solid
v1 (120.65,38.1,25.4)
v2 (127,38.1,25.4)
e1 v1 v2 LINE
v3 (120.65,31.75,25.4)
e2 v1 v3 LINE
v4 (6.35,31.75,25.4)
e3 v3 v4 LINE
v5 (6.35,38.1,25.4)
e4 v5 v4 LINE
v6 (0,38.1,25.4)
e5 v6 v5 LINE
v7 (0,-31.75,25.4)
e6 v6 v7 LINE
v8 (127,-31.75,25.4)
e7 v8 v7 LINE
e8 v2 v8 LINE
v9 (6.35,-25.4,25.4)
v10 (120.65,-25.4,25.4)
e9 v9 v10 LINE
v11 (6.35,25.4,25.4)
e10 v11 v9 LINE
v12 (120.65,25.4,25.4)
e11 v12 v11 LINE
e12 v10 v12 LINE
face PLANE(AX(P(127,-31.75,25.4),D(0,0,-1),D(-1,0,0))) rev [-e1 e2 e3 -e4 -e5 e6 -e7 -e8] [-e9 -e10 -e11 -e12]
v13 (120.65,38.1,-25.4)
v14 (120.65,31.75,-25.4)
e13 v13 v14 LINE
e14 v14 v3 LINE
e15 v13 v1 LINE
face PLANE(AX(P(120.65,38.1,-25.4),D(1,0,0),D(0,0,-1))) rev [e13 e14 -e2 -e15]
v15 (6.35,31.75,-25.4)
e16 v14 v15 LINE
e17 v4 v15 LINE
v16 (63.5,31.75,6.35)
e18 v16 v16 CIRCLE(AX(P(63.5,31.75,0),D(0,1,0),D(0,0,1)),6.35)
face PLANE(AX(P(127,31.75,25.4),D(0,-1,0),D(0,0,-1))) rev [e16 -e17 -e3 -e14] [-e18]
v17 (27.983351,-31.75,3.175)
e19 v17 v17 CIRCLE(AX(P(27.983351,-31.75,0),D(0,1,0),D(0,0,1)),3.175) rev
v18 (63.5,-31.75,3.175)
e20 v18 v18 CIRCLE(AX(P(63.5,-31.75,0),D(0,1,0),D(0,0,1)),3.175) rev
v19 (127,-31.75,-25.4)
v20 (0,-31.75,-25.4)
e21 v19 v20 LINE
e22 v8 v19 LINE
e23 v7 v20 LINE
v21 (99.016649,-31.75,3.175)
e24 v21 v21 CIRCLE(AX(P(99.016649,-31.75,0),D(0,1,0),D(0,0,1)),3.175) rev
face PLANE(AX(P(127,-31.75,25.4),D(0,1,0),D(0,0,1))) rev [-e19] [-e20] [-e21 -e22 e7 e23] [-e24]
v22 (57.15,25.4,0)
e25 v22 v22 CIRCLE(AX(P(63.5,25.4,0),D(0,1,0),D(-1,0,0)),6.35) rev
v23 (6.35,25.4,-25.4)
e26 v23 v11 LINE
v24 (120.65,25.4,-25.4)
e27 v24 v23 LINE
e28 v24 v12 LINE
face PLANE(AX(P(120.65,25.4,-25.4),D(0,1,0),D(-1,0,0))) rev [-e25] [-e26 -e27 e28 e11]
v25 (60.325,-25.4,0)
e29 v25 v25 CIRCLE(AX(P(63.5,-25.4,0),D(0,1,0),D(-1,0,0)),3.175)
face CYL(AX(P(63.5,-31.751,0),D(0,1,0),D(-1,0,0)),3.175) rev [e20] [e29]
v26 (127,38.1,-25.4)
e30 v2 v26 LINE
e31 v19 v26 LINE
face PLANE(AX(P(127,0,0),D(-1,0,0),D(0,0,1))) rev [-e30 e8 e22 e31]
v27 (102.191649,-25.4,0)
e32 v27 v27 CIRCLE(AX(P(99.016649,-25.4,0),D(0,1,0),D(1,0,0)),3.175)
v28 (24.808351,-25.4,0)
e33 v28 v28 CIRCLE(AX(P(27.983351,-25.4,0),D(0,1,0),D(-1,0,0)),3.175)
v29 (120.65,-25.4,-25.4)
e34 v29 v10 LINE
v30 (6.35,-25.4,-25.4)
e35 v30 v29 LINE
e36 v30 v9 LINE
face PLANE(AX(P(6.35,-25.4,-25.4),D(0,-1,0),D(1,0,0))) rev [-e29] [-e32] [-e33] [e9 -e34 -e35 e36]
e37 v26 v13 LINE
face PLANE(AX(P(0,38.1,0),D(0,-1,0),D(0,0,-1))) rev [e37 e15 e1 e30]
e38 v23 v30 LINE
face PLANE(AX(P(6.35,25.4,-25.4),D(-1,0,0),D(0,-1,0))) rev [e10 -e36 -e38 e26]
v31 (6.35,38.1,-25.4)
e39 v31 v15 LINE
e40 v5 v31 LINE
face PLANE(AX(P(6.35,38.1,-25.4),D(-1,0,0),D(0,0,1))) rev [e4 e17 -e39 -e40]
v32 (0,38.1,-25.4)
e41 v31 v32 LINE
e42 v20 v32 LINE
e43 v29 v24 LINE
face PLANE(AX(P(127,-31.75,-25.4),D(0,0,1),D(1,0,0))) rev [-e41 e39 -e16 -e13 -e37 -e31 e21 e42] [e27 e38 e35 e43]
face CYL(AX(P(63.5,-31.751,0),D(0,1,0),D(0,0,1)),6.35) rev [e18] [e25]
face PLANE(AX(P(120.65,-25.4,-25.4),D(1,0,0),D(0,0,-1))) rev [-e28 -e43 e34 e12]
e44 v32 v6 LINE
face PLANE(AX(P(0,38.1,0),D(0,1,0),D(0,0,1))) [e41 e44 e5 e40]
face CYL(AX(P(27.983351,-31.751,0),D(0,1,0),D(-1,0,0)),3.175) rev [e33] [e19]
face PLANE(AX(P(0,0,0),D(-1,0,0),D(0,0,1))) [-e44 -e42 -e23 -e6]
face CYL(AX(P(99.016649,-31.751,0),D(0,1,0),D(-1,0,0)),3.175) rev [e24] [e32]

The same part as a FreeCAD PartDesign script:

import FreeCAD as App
import Part
import Sketcher
Q = App.Units.Quantity

doc = App.newDocument("Part")
body = doc.addObject("PartDesign::Body", "Body")

sketch1 = body.newObject("Sketcher::SketchObject", "Sketch")
sketch1.AttachmentSupport = (doc.getObject("YZ_Plane"), [""])
sketch1.MapMode = "FlatFace"
sketch1.addGeometry([
    Part.LineSegment(App.Vector(31.75, 25.4, 0), App.Vector(-31.75, 25.4, 0)),
    Part.LineSegment(App.Vector(-31.75, 25.4, 0), App.Vector(-31.75, -25.4, 0)),
    Part.LineSegment(App.Vector(-31.75, -25.4, 0), App.Vector(31.75, -25.4, 0)),
    Part.LineSegment(App.Vector(31.75, -25.4, 0), App.Vector(31.75, 25.4, 0)),
], False)
sketch1.addConstraint([
    Sketcher.Constraint("Coincident", 0, 2, 1, 1),
    Sketcher.Constraint("Coincident", 1, 2, 2, 1),
    Sketcher.Constraint("Coincident", 2, 2, 3, 1),
    Sketcher.Constraint("Coincident", 3, 2, 0, 1),
    Sketcher.Constraint("Horizontal", 0),
    Sketcher.Constraint("Vertical", 1),
    Sketcher.Constraint("Horizontal", 2),
    Sketcher.Constraint("Vertical", 3),
    Sketcher.Constraint("Symmetric", 0, 2, 2, 2, -1, 1),
    Sketcher.Constraint("DistanceY", 1, 2, 1, 1, Q("2 in")),
    Sketcher.Constraint("DistanceX", 0, 2, 0, 1, Q("2.5 in")),
])
pad1 = body.newObject("PartDesign::Pad", "Pad")
pad1.Profile = sketch1
pad1.Length = Q("5 in")

sketch2 = body.newObject("Sketcher::SketchObject", "Sketch001")
sketch2.AttachmentSupport = (doc.getObject("XZ_Plane"), [""])
sketch2.MapMode = "FlatFace"
sketch2.AttachmentOffset = App.Placement(App.Vector(0, 0, -1.25 * 25.4), App.Rotation())
sketch2.addGeometry([
    Part.LineSegment(App.Vector(120.65, -25.4, 0), App.Vector(120.65, 25.4, 0)),
    Part.LineSegment(App.Vector(120.65, 25.4, 0), App.Vector(127, 25.4, 0)),
    Part.LineSegment(App.Vector(127, 25.4, 0), App.Vector(127, -25.4, 0)),
    Part.LineSegment(App.Vector(127, -25.4, 0), App.Vector(120.65, -25.4, 0)),
    Part.LineSegment(App.Vector(0, -25.4, 0), App.Vector(0, 25.4, 0)),
    Part.LineSegment(App.Vector(0, 25.4, 0), App.Vector(6.35, 25.4, 0)),
    Part.LineSegment(App.Vector(6.35, 25.4, 0), App.Vector(6.35, -25.4, 0)),
    Part.LineSegment(App.Vector(6.35, -25.4, 0), App.Vector(0, -25.4, 0)),
], False)
sketch2.addConstraint([
    Sketcher.Constraint("Coincident", 0, 2, 1, 1),
    Sketcher.Constraint("Coincident", 1, 2, 2, 1),
    Sketcher.Constraint("Coincident", 2, 2, 3, 1),
    Sketcher.Constraint("Coincident", 3, 2, 0, 1),
    Sketcher.Constraint("Coincident", 4, 2, 5, 1),
    Sketcher.Constraint("Coincident", 5, 2, 6, 1),
    Sketcher.Constraint("Coincident", 6, 2, 7, 1),
    Sketcher.Constraint("Coincident", 7, 2, 4, 1),
    Sketcher.Constraint("Vertical", 0),
    Sketcher.Constraint("Horizontal", 1),
    Sketcher.Constraint("Vertical", 2),
    Sketcher.Constraint("Horizontal", 3),
    Sketcher.Constraint("Vertical", 4),
    Sketcher.Constraint("Horizontal", 5),
    Sketcher.Constraint("Vertical", 6),
    Sketcher.Constraint("Horizontal", 7),
    Sketcher.Constraint("Symmetric", 4, 2, 7, 2, -1, 1),
    Sketcher.Constraint("Horizontal", 1, 2, 4, 2),
    Sketcher.Constraint("Horizontal", 3, 2, 6, 2),
    Sketcher.Constraint("Equal", 3, 5),
    Sketcher.Constraint("DistanceY", 0, 1, 0, 2, Q("2 in")),
    Sketcher.Constraint("DistanceX", -1, 1, 1, 2, Q("5 in")),
    Sketcher.Constraint("DistanceX", 1, 1, 1, 2, Q("0.25 in")),
])
pad2 = body.newObject("PartDesign::Pad", "Pad001")
pad2.Profile = sketch2
pad2.Length = Q("0.25 in")
pad2.Reversed = True

sketch3 = body.newObject("Sketcher::SketchObject", "Sketch002")
sketch3.AttachmentSupport = (doc.getObject("XY_Plane"), [""])
sketch3.MapMode = "FlatFace"
sketch3.addGeometry([
    Part.LineSegment(App.Vector(6.35, 25.4, 0), App.Vector(6.35, -25.4, 0)),
    Part.LineSegment(App.Vector(6.35, -25.4, 0), App.Vector(120.65, -25.4, 0)),
    Part.LineSegment(App.Vector(120.65, -25.4, 0), App.Vector(120.65, 25.4, 0)),
    Part.LineSegment(App.Vector(120.65, 25.4, 0), App.Vector(6.35, 25.4, 0)),
], False)
sketch3.addConstraint([
    Sketcher.Constraint("Coincident", 0, 2, 1, 1),
    Sketcher.Constraint("Coincident", 1, 2, 2, 1),
    Sketcher.Constraint("Coincident", 2, 2, 3, 1),
    Sketcher.Constraint("Coincident", 3, 2, 0, 1),
    Sketcher.Constraint("Vertical", 0),
    Sketcher.Constraint("Horizontal", 1),
    Sketcher.Constraint("Vertical", 2),
    Sketcher.Constraint("Horizontal", 3),
    Sketcher.Constraint("DistanceY", 0, 2, 0, 1, Q("2 in")),
    Sketcher.Constraint("DistanceX", 1, 1, 1, 2, Q("4.5 in")),
    Sketcher.Constraint("DistanceY", 0, 2, -1, 1, Q("1 in")),
    Sketcher.Constraint("DistanceX", -1, 1, 0, 2, Q("0.25 in")),
])
pocket1 = body.newObject("PartDesign::Pocket", "Pocket")
pocket1.Profile = sketch3
pocket1.Type = "ThroughAll"
pocket1.Midplane = True

sketch4 = body.newObject("Sketcher::SketchObject", "Sketch003")
sketch4.AttachmentSupport = (doc.getObject("XZ_Plane"), [""])
sketch4.MapMode = "FlatFace"
sketch4.AttachmentOffset = App.Placement(App.Vector(0, 0, -1.25 * 25.4), App.Rotation())
sketch4.addGeometry(Part.Circle(App.Vector(63.5, 0, 0), App.Vector(0, 0, 1), 6.35), False)
sketch4.addConstraint([
    Sketcher.Constraint("PointOnObject", 0, 3, -1),
    Sketcher.Constraint("Diameter", 0, Q("0.5 in")),
    Sketcher.Constraint("DistanceX", -1, 1, 0, 3, Q("2.5 in")),
])
pocket2 = body.newObject("PartDesign::Pocket", "Pocket001")
pocket2.Profile = sketch4
pocket2.Type = "UpToFirst"
pocket2.Reversed = True

sketch5 = body.newObject("Sketcher::SketchObject", "Sketch004")
sketch5.AttachmentSupport = (doc.getObject("XZ_Plane"), [""])
sketch5.MapMode = "FlatFace"
sketch5.AttachmentOffset = App.Placement(App.Vector(0, 0, 1 * 25.4), App.Rotation())
sketch5.addGeometry(Part.Circle(App.Vector(63.5, 0, 0), App.Vector(0, 0, 1), 3.175), False)
sketch5.addConstraint([
    Sketcher.Constraint("PointOnObject", 0, 3, -1),
    Sketcher.Constraint("Diameter", 0, Q("0.25 in")),
    Sketcher.Constraint("DistanceX", -1, 1, 0, 3, Q("2.5 in")),
])
pocket3 = body.newObject("PartDesign::Pocket", "Pocket002")
pocket3.Profile = sketch5
pocket3.Type = "UpToFirst"
pocket3.Reversed = True

sketch6 = body.newObject("Sketcher::SketchObject", "Sketch005")
sketch6.AttachmentSupport = (doc.getObject("XZ_Plane"), [""])
sketch6.MapMode = "FlatFace"
sketch6.AttachmentOffset = App.Placement(App.Vector(0, 0, 1 * 25.4), App.Rotation())
sketch6.addGeometry(Part.Circle(App.Vector(27.983351, 0, 0), App.Vector(0, 0, 1), 3.175), False)
sketch6.addConstraint([
    Sketcher.Constraint("PointOnObject", 0, 3, -1),
    Sketcher.Constraint("Diameter", 0, Q("0.25 in")),
    Sketcher.Constraint("DistanceX", -1, 1, 0, 3, Q("27.983351 mm")),
])
pocket4 = body.newObject("PartDesign::Pocket", "Pocket003")
pocket4.Profile = sketch6
pocket4.Type = "UpToFirst"
pocket4.Reversed = True

sketch7 = body.newObject("Sketcher::SketchObject", "Sketch006")
sketch7.AttachmentSupport = (doc.getObject("XZ_Plane"), [""])
sketch7.MapMode = "FlatFace"
sketch7.AttachmentOffset = App.Placement(App.Vector(0, 0, 1 * 25.4), App.Rotation())
sketch7.addGeometry(Part.Circle(App.Vector(99.016649, 0, 0), App.Vector(0, 0, 1), 3.175), False)
sketch7.addConstraint([
    Sketcher.Constraint("PointOnObject", 0, 3, -1),
    Sketcher.Constraint("Diameter", 0, Q("0.25 in")),
    Sketcher.Constraint("DistanceX", -1, 1, 0, 3, Q("99.016649 mm")),
])
pocket5 = body.newObject("PartDesign::Pocket", "Pocket004")
pocket5.Profile = sketch7
pocket5.Type = "UpToFirst"
pocket5.Reversed = True

doc.recompute()
